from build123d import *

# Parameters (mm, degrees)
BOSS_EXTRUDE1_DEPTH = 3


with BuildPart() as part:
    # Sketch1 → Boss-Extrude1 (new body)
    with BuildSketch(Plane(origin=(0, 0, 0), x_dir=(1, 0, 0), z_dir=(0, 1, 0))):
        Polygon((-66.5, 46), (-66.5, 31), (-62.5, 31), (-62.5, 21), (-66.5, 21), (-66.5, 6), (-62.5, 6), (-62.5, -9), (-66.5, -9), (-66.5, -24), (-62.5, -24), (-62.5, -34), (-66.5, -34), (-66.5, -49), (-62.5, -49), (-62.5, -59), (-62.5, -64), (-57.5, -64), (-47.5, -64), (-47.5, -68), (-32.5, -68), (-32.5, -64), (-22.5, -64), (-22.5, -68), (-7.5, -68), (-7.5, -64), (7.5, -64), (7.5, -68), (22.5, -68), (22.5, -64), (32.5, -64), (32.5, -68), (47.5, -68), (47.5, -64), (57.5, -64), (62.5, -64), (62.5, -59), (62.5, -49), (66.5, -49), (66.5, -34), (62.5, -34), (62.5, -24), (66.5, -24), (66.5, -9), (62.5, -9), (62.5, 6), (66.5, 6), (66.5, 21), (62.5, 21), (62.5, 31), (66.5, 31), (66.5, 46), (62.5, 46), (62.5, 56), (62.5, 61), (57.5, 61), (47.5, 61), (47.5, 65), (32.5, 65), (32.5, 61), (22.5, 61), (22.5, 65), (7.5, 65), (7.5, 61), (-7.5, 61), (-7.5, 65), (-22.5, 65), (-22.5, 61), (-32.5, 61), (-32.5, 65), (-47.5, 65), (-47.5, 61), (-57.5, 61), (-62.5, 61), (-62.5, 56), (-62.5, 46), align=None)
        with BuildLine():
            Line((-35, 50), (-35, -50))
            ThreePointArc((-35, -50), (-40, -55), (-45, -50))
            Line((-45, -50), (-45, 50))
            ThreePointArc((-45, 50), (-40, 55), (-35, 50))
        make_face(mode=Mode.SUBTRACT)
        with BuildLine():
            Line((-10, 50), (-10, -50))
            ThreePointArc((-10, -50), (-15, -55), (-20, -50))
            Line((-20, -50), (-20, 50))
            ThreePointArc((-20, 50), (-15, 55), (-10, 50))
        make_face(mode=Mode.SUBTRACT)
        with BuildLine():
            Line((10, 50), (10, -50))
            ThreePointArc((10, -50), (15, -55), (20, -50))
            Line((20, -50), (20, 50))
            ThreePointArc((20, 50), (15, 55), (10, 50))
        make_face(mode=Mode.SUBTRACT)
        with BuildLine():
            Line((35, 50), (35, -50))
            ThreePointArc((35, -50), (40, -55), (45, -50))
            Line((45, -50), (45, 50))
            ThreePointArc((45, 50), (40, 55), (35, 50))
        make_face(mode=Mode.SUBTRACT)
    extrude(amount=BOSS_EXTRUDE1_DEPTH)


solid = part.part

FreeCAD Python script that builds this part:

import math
import FreeCAD as App
import Part
import Sketcher
Q = App.Units.Quantity

doc = App.newDocument("Part")
body = doc.addObject("PartDesign::Body", "Body")

# Sketch on XZ plane
sketch1 = body.newObject("Sketcher::SketchObject", "Sketch")
sketch1.AttachmentSupport = (doc.getObject("XZ_Plane"), [""])
sketch1.MapMode = "FlatFace"
sketch1.addGeometry(Part.LineSegment(App.Vector(-66.5, -46, 0), App.Vector(-66.5, -31, 0)), False)
sketch1.addGeometry(Part.LineSegment(App.Vector(-66.5, -31, 0), App.Vector(-62.5, -31, 0)), False)
sketch1.addGeometry(Part.LineSegment(App.Vector(-62.5, -31, 0), App.Vector(-62.5, -21, 0)), False)
sketch1.addGeometry(Part.LineSegment(App.Vector(-62.5, -21, 0), App.Vector(-66.5, -21, 0)), False)
sketch1.addGeometry(Part.LineSegment(App.Vector(-66.5, -21, 0), App.Vector(-66.5, -6, 0)), False)
sketch1.addGeometry(Part.LineSegment(App.Vector(-66.5, -6, 0), App.Vector(-62.5, -6, 0)), False)
sketch1.addGeometry(Part.LineSegment(App.Vector(-62.5, -6, 0), App.Vector(-62.5, 9, 0)), False)
sketch1.addGeometry(Part.LineSegment(App.Vector(-62.5, 9, 0), App.Vector(-66.5, 9, 0)), False)
sketch1.addGeometry(Part.LineSegment(App.Vector(-66.5, 9, 0), App.Vector(-66.5, 24, 0)), False)
sketch1.addGeometry(Part.LineSegment(App.Vector(-66.5, 24, 0), App.Vector(-62.5, 24, 0)), False)
sketch1.addGeometry(Part.LineSegment(App.Vector(-62.5, 24, 0), App.Vector(-62.5, 34, 0)), False)
sketch1.addGeometry(Part.LineSegment(App.Vector(-62.5, 34, 0), App.Vector(-66.5, 34, 0)), False)
sketch1.addGeometry(Part.LineSegment(App.Vector(-66.5, 34, 0), App.Vector(-66.5, 49, 0)), False)
sketch1.addGeometry(Part.LineSegment(App.Vector(-66.5, 49, 0), App.Vector(-62.5, 49, 0)), False)
sketch1.addGeometry(Part.LineSegment(App.Vector(-62.5, 49, 0), App.Vector(-62.5, 64, 0)), False)
sketch1.addGeometry(Part.LineSegment(App.Vector(-62.5, 64, 0), App.Vector(-47.5, 64, 0)), False)
sketch1.addGeometry(Part.LineSegment(App.Vector(-47.5, 64, 0), App.Vector(-47.5, 68, 0)), False)
sketch1.addGeometry(Part.LineSegment(App.Vector(-47.5, 68, 0), App.Vector(-32.5, 68, 0)), False)
sketch1.addGeometry(Part.LineSegment(App.Vector(-32.5, 68, 0), App.Vector(-32.5, 64, 0)), False)
sketch1.addGeometry(Part.LineSegment(App.Vector(-32.5, 64, 0), App.Vector(-22.5, 64, 0)), False)
sketch1.addGeometry(Part.LineSegment(App.Vector(-22.5, 64, 0), App.Vector(-22.5, 68, 0)), False)
sketch1.addGeometry(Part.LineSegment(App.Vector(-22.5, 68, 0), App.Vector(-7.5, 68, 0)), False)
sketch1.addGeometry(Part.LineSegment(App.Vector(-7.5, 68, 0), App.Vector(-7.5, 64, 0)), False)
sketch1.addGeometry(Part.LineSegment(App.Vector(-7.5, 64, 0), App.Vector(7.5, 64, 0)), False)
sketch1.addGeometry(Part.LineSegment(App.Vector(7.5, 64, 0), App.Vector(7.5, 68, 0)), False)
sketch1.addGeometry(Part.LineSegment(App.Vector(7.5, 68, 0), App.Vector(22.5, 68, 0)), False)
sketch1.addGeometry(Part.LineSegment(App.Vector(22.5, 68, 0), App.Vector(22.5, 64, 0)), False)
sketch1.addGeometry(Part.LineSegment(App.Vector(22.5, 64, 0), App.Vector(32.5, 64, 0)), False)
sketch1.addGeometry(Part.LineSegment(App.Vector(32.5, 64, 0), App.Vector(32.5, 68, 0)), False)
sketch1.addGeometry(Part.LineSegment(App.Vector(32.5, 68, 0), App.Vector(47.5, 68, 0)), False)
sketch1.addGeometry(Part.LineSegment(App.Vector(47.5, 68, 0), App.Vector(47.5, 64, 0)), False)
sketch1.addGeometry(Part.LineSegment(App.Vector(47.5, 64, 0), App.Vector(62.5, 64, 0)), False)
sketch1.addGeometry(Part.LineSegment(App.Vector(62.5, 64, 0), App.Vector(62.5, 49, 0)), False)
sketch1.addGeometry(Part.LineSegment(App.Vector(62.5, 49, 0), App.Vector(66.5, 49, 0)), False)
sketch1.addGeometry(Part.LineSegment(App.Vector(66.5, 49, 0), App.Vector(66.5, 34, 0)), False)
sketch1.addGeometry(Part.LineSegment(App.Vector(66.5, 34, 0), App.Vector(62.5, 34, 0)), False)
sketch1.addGeometry(Part.LineSegment(App.Vector(62.5, 34, 0), App.Vector(62.5, 24, 0)), False)
sketch1.addGeometry(Part.LineSegment(App.Vector(62.5, 24, 0), App.Vector(66.5, 24, 0)), False)
sketch1.addGeometry(Part.LineSegment(App.Vector(66.5, 24, 0), App.Vector(66.5, 9, 0)), False)
sketch1.addGeometry(Part.LineSegment(App.Vector(66.5, 9, 0), App.Vector(62.5, 9, 0)), False)
sketch1.addGeometry(Part.LineSegment(App.Vector(62.5, 9, 0), App.Vector(62.5, -6, 0)), False)
sketch1.addGeometry(Part.LineSegment(App.Vector(62.5, -6, 0), App.Vector(66.5, -6, 0)), False)
sketch1.addGeometry(Part.LineSegment(App.Vector(66.5, -6, 0), App.Vector(66.5, -21, 0)), False)
sketch1.addGeometry(Part.LineSegment(App.Vector(66.5, -21, 0), App.Vector(62.5, -21, 0)), False)
sketch1.addGeometry(Part.LineSegment(App.Vector(62.5, -21, 0), App.Vector(62.5, -31, 0)), False)
sketch1.addGeometry(Part.LineSegment(App.Vector(62.5, -31, 0), App.Vector(66.5, -31, 0)), False)
sketch1.addGeometry(Part.LineSegment(App.Vector(66.5, -31, 0), App.Vector(66.5, -46, 0)), False)
sketch1.addGeometry(Part.LineSegment(App.Vector(66.5, -46, 0), App.Vector(62.5, -46, 0)), False)
sketch1.addGeometry(Part.LineSegment(App.Vector(62.5, -46, 0), App.Vector(62.5, -61, 0)), False)
sketch1.addGeometry(Part.LineSegment(App.Vector(62.5, -61, 0), App.Vector(47.5, -61, 0)), False)
sketch1.addGeometry(Part.LineSegment(App.Vector(47.5, -61, 0), App.Vector(47.5, -65, 0)), False)
sketch1.addGeometry(Part.LineSegment(App.Vector(47.5, -65, 0), App.Vector(32.5, -65, 0)), False)
sketch1.addGeometry(Part.LineSegment(App.Vector(32.5, -65, 0), App.Vector(32.5, -61, 0)), False)
sketch1.addGeometry(Part.LineSegment(App.Vector(32.5, -61, 0), App.Vector(22.5, -61, 0)), False)
sketch1.addGeometry(Part.LineSegment(App.Vector(22.5, -61, 0), App.Vector(22.5, -65, 0)), False)
sketch1.addGeometry(Part.LineSegment(App.Vector(22.5, -65, 0), App.Vector(7.5, -65, 0)), False)
sketch1.addGeometry(Part.LineSegment(App.Vector(7.5, -65, 0), App.Vector(7.5, -61, 0)), False)
sketch1.addGeometry(Part.LineSegment(App.Vector(7.5, -61, 0), App.Vector(-7.5, -61, 0)), False)
sketch1.addGeometry(Part.LineSegment(App.Vector(-7.5, -61, 0), App.Vector(-7.5, -65, 0)), False)
sketch1.addGeometry(Part.LineSegment(App.Vector(-7.5, -65, 0), App.Vector(-22.5, -65, 0)), False)
sketch1.addGeometry(Part.LineSegment(App.Vector(-22.5, -65, 0), App.Vector(-22.5, -61, 0)), False)
sketch1.addGeometry(Part.LineSegment(App.Vector(-22.5, -61, 0), App.Vector(-32.5, -61, 0)), False)
sketch1.addGeometry(Part.LineSegment(App.Vector(-32.5, -61, 0), App.Vector(-32.5, -65, 0)), False)
sketch1.addGeometry(Part.LineSegment(App.Vector(-32.5, -65, 0), App.Vector(-47.5, -65, 0)), False)
sketch1.addGeometry(Part.LineSegment(App.Vector(-47.5, -65, 0), App.Vector(-47.5, -61, 0)), False)
sketch1.addGeometry(Part.LineSegment(App.Vector(-47.5, -61, 0), App.Vector(-62.5, -61, 0)), False)
sketch1.addGeometry(Part.LineSegment(App.Vector(-62.5, -61, 0), App.Vector(-62.5, -46, 0)), False)
sketch1.addGeometry(Part.LineSegment(App.Vector(-62.5, -46, 0), App.Vector(-66.5, -46, 0)), False)
sketch1.addGeometry(Part.ArcOfCircle(Part.Circle(App.Vector(-40, -50, 0), App.Vector(0, 0, 1), 5), math.radians(180), math.radians(360)), False)
sketch1.addGeometry(Part.LineSegment(App.Vector(-35, -50, 0), App.Vector(-35, 50, 0)), False)
sketch1.addGeometry(Part.ArcOfCircle(Part.Circle(App.Vector(-40, 50, 0), App.Vector(0, 0, 1), 5), math.radians(0), math.radians(180)), False)
sketch1.addGeometry(Part.LineSegment(App.Vector(-45, 50, 0), App.Vector(-45, -50, 0)), False)
sketch1.addGeometry(Part.ArcOfCircle(Part.Circle(App.Vector(-15, -50, 0), App.Vector(0, 0, 1), 5), math.radians(180), math.radians(360)), False)
sketch1.addGeometry(Part.LineSegment(App.Vector(-10, -50, 0), App.Vector(-10, 50, 0)), False)
sketch1.addGeometry(Part.ArcOfCircle(Part.Circle(App.Vector(-15, 50, 0), App.Vector(0, 0, 1), 5), math.radians(0), math.radians(180)), False)
sketch1.addGeometry(Part.LineSegment(App.Vector(-20, 50, 0), App.Vector(-20, -50, 0)), False)
sketch1.addGeometry(Part.LineSegment(App.Vector(10, 50, 0), App.Vector(10, -50, 0)), False)
sketch1.addGeometry(Part.ArcOfCircle(Part.Circle(App.Vector(15, -50, 0), App.Vector(0, 0, 1), 5), math.radians(180), math.radians(360)), False)
sketch1.addGeometry(Part.LineSegment(App.Vector(20, -50, 0), App.Vector(20, 50, 0)), False)
sketch1.addGeometry(Part.ArcOfCircle(Part.Circle(App.Vector(15, 50, 0), App.Vector(0, 0, 1), 5), math.radians(0), math.radians(180)), False)
sketch1.addGeometry(Part.LineSegment(App.Vector(35, 50, 0), App.Vector(35, -50, 0)), False)
sketch1.addGeometry(Part.ArcOfCircle(Part.Circle(App.Vector(40, -50, 0), App.Vector(0, 0, 1), 5), math.radians(180), math.radians(360)), False)
sketch1.addGeometry(Part.LineSegment(App.Vector(45, -50, 0), App.Vector(45, 50, 0)), False)
sketch1.addGeometry(Part.ArcOfCircle(Part.Circle(App.Vector(40, 50, 0), App.Vector(0, 0, 1), 5), math.radians(0), math.radians(180)), False)
sketch1.addConstraint(Sketcher.Constraint("Coincident", 0, 2, 1, 1))
sketch1.addConstraint(Sketcher.Constraint("Coincident", 1, 2, 2, 1))
sketch1.addConstraint(Sketcher.Constraint("Coincident", 2, 2, 3, 1))
sketch1.addConstraint(Sketcher.Constraint("Coincident", 3, 2, 4, 1))
sketch1.addConstraint(Sketcher.Constraint("Coincident", 4, 2, 5, 1))
sketch1.addConstraint(Sketcher.Constraint("Coincident", 5, 2, 6, 1))
sketch1.addConstraint(Sketcher.Constraint("Coincident", 6, 2, 7, 1))
sketch1.addConstraint(Sketcher.Constraint("Coincident", 7, 2, 8, 1))
sketch1.addConstraint(Sketcher.Constraint("Coincident", 8, 2, 9, 1))
sketch1.addConstraint(Sketcher.Constraint("Coincident", 9, 2, 10, 1))
sketch1.addConstraint(Sketcher.Constraint("Coincident", 10, 2, 11, 1))
sketch1.addConstraint(Sketcher.Constraint("Coincident", 11, 2, 12, 1))
sketch1.addConstraint(Sketcher.Constraint("Coincident", 12, 2, 13, 1))
sketch1.addConstraint(Sketcher.Constraint("Coincident", 13, 2, 14, 1))
sketch1.addConstraint(Sketcher.Constraint("Coincident", 14, 2, 15, 1))
sketch1.addConstraint(Sketcher.Constraint("Coincident", 15, 2, 16, 1))
sketch1.addConstraint(Sketcher.Constraint("Coincident", 16, 2, 17, 1))
sketch1.addConstraint(Sketcher.Constraint("Coincident", 17, 2, 18, 1))
sketch1.addConstraint(Sketcher.Constraint("Coincident", 18, 2, 19, 1))
sketch1.addConstraint(Sketcher.Constraint("Coincident", 19, 2, 20, 1))
sketch1.addConstraint(Sketcher.Constraint("Coincident", 20, 2, 21, 1))
sketch1.addConstraint(Sketcher.Constraint("Coincident", 21, 2, 22, 1))
sketch1.addConstraint(Sketcher.Constraint("Coincident", 22, 2, 23, 1))
sketch1.addConstraint(Sketcher.Constraint("Coincident", 23, 2, 24, 1))
sketch1.addConstraint(Sketcher.Constraint("Coincident", 24, 2, 25, 1))
sketch1.addConstraint(Sketcher.Constraint("Coincident", 25, 2, 26, 1))
sketch1.addConstraint(Sketcher.Constraint("Coincident", 26, 2, 27, 1))
sketch1.addConstraint(Sketcher.Constraint("Coincident", 27, 2, 28, 1))
sketch1.addConstraint(Sketcher.Constraint("Coincident", 28, 2, 29, 1))
sketch1.addConstraint(Sketcher.Constraint("Coincident", 29, 2, 30, 1))
sketch1.addConstraint(Sketcher.Constraint("Coincident", 30, 2, 31, 1))
sketch1.addConstraint(Sketcher.Constraint("Coincident", 31, 2, 32, 1))
sketch1.addConstraint(Sketcher.Constraint("Coincident", 32, 2, 33, 1))
sketch1.addConstraint(Sketcher.Constraint("Coincident", 33, 2, 34, 1))
sketch1.addConstraint(Sketcher.Constraint("Coincident", 34, 2, 35, 1))
sketch1.addConstraint(Sketcher.Constraint("Coincident", 35, 2, 36, 1))
sketch1.addConstraint(Sketcher.Constraint("Coincident", 36, 2, 37, 1))
sketch1.addConstraint(Sketcher.Constraint("Coincident", 37, 2, 38, 1))
sketch1.addConstraint(Sketcher.Constraint("Coincident", 38, 2, 39, 1))
sketch1.addConstraint(Sketcher.Constraint("Coincident", 39, 2, 40, 1))
sketch1.addConstraint(Sketcher.Constraint("Coincident", 40, 2, 41, 1))
sketch1.addConstraint(Sketcher.Constraint("Coincident", 41, 2, 42, 1))
sketch1.addConstraint(Sketcher.Constraint("Coincident", 42, 2, 43, 1))
sketch1.addConstraint(Sketcher.Constraint("Coincident", 43, 2, 44, 1))
sketch1.addConstraint(Sketcher.Constraint("Coincident", 44, 2, 45, 1))
sketch1.addConstraint(Sketcher.Constraint("Coincident", 45, 2, 46, 1))
sketch1.addConstraint(Sketcher.Constraint("Coincident", 46, 2, 47, 1))
sketch1.addConstraint(Sketcher.Constraint("Coincident", 47, 2, 48, 1))
sketch1.addConstraint(Sketcher.Constraint("Coincident", 48, 2, 49, 1))
sketch1.addConstraint(Sketcher.Constraint("Coincident", 49, 2, 50, 1))
sketch1.addConstraint(Sketcher.Constraint("Coincident", 50, 2, 51, 1))
sketch1.addConstraint(Sketcher.Constraint("Coincident", 51, 2, 52, 1))
sketch1.addConstraint(Sketcher.Constraint("Coincident", 52, 2, 53, 1))
sketch1.addConstraint(Sketcher.Constraint("Coincident", 53, 2, 54, 1))
sketch1.addConstraint(Sketcher.Constraint("Coincident", 54, 2, 55, 1))
sketch1.addConstraint(Sketcher.Constraint("Coincident", 55, 2, 56, 1))
sketch1.addConstraint(Sketcher.Constraint("Coincident", 56, 2, 57, 1))
sketch1.addConstraint(Sketcher.Constraint("Coincident", 57, 2, 58, 1))
sketch1.addConstraint(Sketcher.Constraint("Coincident", 58, 2, 59, 1))
sketch1.addConstraint(Sketcher.Constraint("Coincident", 59, 2, 60, 1))
sketch1.addConstraint(Sketcher.Constraint("Coincident", 60, 2, 61, 1))
sketch1.addConstraint(Sketcher.Constraint("Coincident", 61, 2, 62, 1))
sketch1.addConstraint(Sketcher.Constraint("Coincident", 62, 2, 63, 1))
sketch1.addConstraint(Sketcher.Constraint("Coincident", 63, 2, 64, 1))
sketch1.addConstraint(Sketcher.Constraint("Coincident", 64, 2, 65, 1))
sketch1.addConstraint(Sketcher.Constraint("Coincident", 65, 2, 66, 1))
sketch1.addConstraint(Sketcher.Constraint("Coincident", 66, 2, 67, 1))
sketch1.addConstraint(Sketcher.Constraint("Coincident", 67, 2, 0, 1))
sketch1.addConstraint(Sketcher.Constraint("Tangent", 68, 2, 69, 1))
sketch1.addConstraint(Sketcher.Constraint("Tangent", 69, 2, 70, 1))
sketch1.addConstraint(Sketcher.Constraint("Tangent", 70, 2, 71, 1))
sketch1.addConstraint(Sketcher.Constraint("Tangent", 71, 2, 68, 1))
sketch1.addConstraint(Sketcher.Constraint("Tangent", 72, 2, 73, 1))
sketch1.addConstraint(Sketcher.Constraint("Tangent", 73, 2, 74, 1))
sketch1.addConstraint(Sketcher.Constraint("Tangent", 74, 2, 75, 1))
sketch1.addConstraint(Sketcher.Constraint("Tangent", 75, 2, 72, 1))
sketch1.addConstraint(Sketcher.Constraint("Tangent", 76, 2, 77, 1))
sketch1.addConstraint(Sketcher.Constraint("Tangent", 77, 2, 78, 1))
sketch1.addConstraint(Sketcher.Constraint("Tangent", 78, 2, 79, 1))
sketch1.addConstraint(Sketcher.Constraint("Tangent", 79, 2, 76, 1))
sketch1.addConstraint(Sketcher.Constraint("Tangent", 80, 2, 81, 1))
sketch1.addConstraint(Sketcher.Constraint("Tangent", 81, 2, 82, 1))
sketch1.addConstraint(Sketcher.Constraint("Tangent", 82, 2, 83, 1))
sketch1.addConstraint(Sketcher.Constraint("Tangent", 83, 2, 80, 1))
sketch1.addConstraint(Sketcher.Constraint("Vertical", 0))
sketch1.addConstraint(Sketcher.Constraint("Horizontal", 1))
sketch1.addConstraint(Sketcher.Constraint("Vertical", 2))
sketch1.addConstraint(Sketcher.Constraint("Horizontal", 3))
sketch1.addConstraint(Sketcher.Constraint("Vertical", 4))
sketch1.addConstraint(Sketcher.Constraint("Horizontal", 5))
sketch1.addConstraint(Sketcher.Constraint("Vertical", 6))
sketch1.addConstraint(Sketcher.Constraint("Horizontal", 7))
sketch1.addConstraint(Sketcher.Constraint("Vertical", 8))
sketch1.addConstraint(Sketcher.Constraint("Horizontal", 9))
sketch1.addConstraint(Sketcher.Constraint("Vertical", 10))
sketch1.addConstraint(Sketcher.Constraint("Horizontal", 11))
sketch1.addConstraint(Sketcher.Constraint("Vertical", 12))
sketch1.addConstraint(Sketcher.Constraint("Horizontal", 13))
sketch1.addConstraint(Sketcher.Constraint("Vertical", 14))
sketch1.addConstraint(Sketcher.Constraint("Horizontal", 15))
sketch1.addConstraint(Sketcher.Constraint("Vertical", 16))
sketch1.addConstraint(Sketcher.Constraint("Horizontal", 17))
sketch1.addConstraint(Sketcher.Constraint("Vertical", 18))
sketch1.addConstraint(Sketcher.Constraint("Horizontal", 19))
sketch1.addConstraint(Sketcher.Constraint("Vertical", 20))
sketch1.addConstraint(Sketcher.Constraint("Horizontal", 21))
sketch1.addConstraint(Sketcher.Constraint("Vertical", 22))
sketch1.addConstraint(Sketcher.Constraint("Horizontal", 23))
sketch1.addConstraint(Sketcher.Constraint("Vertical", 24))
sketch1.addConstraint(Sketcher.Constraint("Horizontal", 25))
sketch1.addConstraint(Sketcher.Constraint("Vertical", 26))
sketch1.addConstraint(Sketcher.Constraint("Horizontal", 27))
sketch1.addConstraint(Sketcher.Constraint("Vertical", 28))
sketch1.addConstraint(Sketcher.Constraint("Horizontal", 29))
sketch1.addConstraint(Sketcher.Constraint("Vertical", 30))
sketch1.addConstraint(Sketcher.Constraint("Horizontal", 31))
sketch1.addConstraint(Sketcher.Constraint("Vertical", 32))
sketch1.addConstraint(Sketcher.Constraint("Horizontal", 33))
sketch1.addConstraint(Sketcher.Constraint("Vertical", 34))
sketch1.addConstraint(Sketcher.Constraint("Horizontal", 35))
sketch1.addConstraint(Sketcher.Constraint("Vertical", 36))
sketch1.addConstraint(Sketcher.Constraint("Horizontal", 37))
sketch1.addConstraint(Sketcher.Constraint("Vertical", 38))
sketch1.addConstraint(Sketcher.Constraint("Horizontal", 39))
sketch1.addConstraint(Sketcher.Constraint("Vertical", 40))
sketch1.addConstraint(Sketcher.Constraint("Horizontal", 41))
sketch1.addConstraint(Sketcher.Constraint("Vertical", 42))
sketch1.addConstraint(Sketcher.Constraint("Horizontal", 43))
sketch1.addConstraint(Sketcher.Constraint("Vertical", 44))
sketch1.addConstraint(Sketcher.Constraint("Horizontal", 45))
sketch1.addConstraint(Sketcher.Constraint("Vertical", 46))
sketch1.addConstraint(Sketcher.Constraint("Horizontal", 47))
sketch1.addConstraint(Sketcher.Constraint("Vertical", 48))
sketch1.addConstraint(Sketcher.Constraint("Horizontal", 49))
sketch1.addConstraint(Sketcher.Constraint("Vertical", 50))
sketch1.addConstraint(Sketcher.Constraint("Horizontal", 51))
sketch1.addConstraint(Sketcher.Constraint("Vertical", 52))
sketch1.addConstraint(Sketcher.Constraint("Horizontal", 53))
sketch1.addConstraint(Sketcher.Constraint("Vertical", 54))
sketch1.addConstraint(Sketcher.Constraint("Horizontal", 55))
sketch1.addConstraint(Sketcher.Constraint("Vertical", 56))
sketch1.addConstraint(Sketcher.Constraint("Horizontal", 57))
sketch1.addConstraint(Sketcher.Constraint("Vertical", 58))
sketch1.addConstraint(Sketcher.Constraint("Horizontal", 59))
sketch1.addConstraint(Sketcher.Constraint("Vertical", 60))
sketch1.addConstraint(Sketcher.Constraint("Horizontal", 61))
sketch1.addConstraint(Sketcher.Constraint("Vertical", 62))
sketch1.addConstraint(Sketcher.Constraint("Horizontal", 63))
sketch1.addConstraint(Sketcher.Constraint("Vertical", 64))
sketch1.addConstraint(Sketcher.Constraint("Horizontal", 65))
sketch1.addConstraint(Sketcher.Constraint("Vertical", 66))
sketch1.addConstraint(Sketcher.Constraint("Horizontal", 67))
sketch1.addConstraint(Sketcher.Constraint("Vertical", 69))
sketch1.addConstraint(Sketcher.Constraint("Vertical", 71))
sketch1.addConstraint(Sketcher.Constraint("Vertical", 73))
sketch1.addConstraint(Sketcher.Constraint("Vertical", 75))
sketch1.addConstraint(Sketcher.Constraint("Vertical", 76))
sketch1.addConstraint(Sketcher.Constraint("Vertical", 78))
sketch1.addConstraint(Sketcher.Constraint("Vertical", 80))
sketch1.addConstraint(Sketcher.Constraint("Vertical", 82))
sketch1.addConstraint(Sketcher.Constraint("Equal", 70, 72))
sketch1.addConstraint(Sketcher.Constraint("Equal", 74, 77))
sketch1.addConstraint(Sketcher.Constraint("Equal", 79, 81))
sketch1.addConstraint(Sketcher.Constraint("Symmetric", 74, 3, 77, 3, -1, 1))
sketch1.addConstraint(Sketcher.Constraint("Symmetric", 70, 3, 81, 3, -1, 1))
sketch1.addConstraint(Sketcher.Constraint("Symmetric", 21, 2, 24, 2, -2))
sketch1.addConstraint(Sketcher.Constraint("Symmetric", 19, 2, 26, 2, -2))
sketch1.addConstraint(Sketcher.Constraint("Symmetric", 17, 2, 28, 2, -2))
sketch1.addConstraint(Sketcher.Constraint("Symmetric", 15, 2, 30, 2, -2))
sketch1.addConstraint(Sketcher.Constraint("Symmetric", 13, 2, 32, 2, -2))
sketch1.addConstraint(Sketcher.Constraint("Symmetric", 11, 2, 34, 2, -2))
sketch1.addConstraint(Sketcher.Constraint("Symmetric", 9, 2, 36, 2, -2))
sketch1.addConstraint(Sketcher.Constraint("Symmetric", 7, 2, 38, 2, -2))
sketch1.addConstraint(Sketcher.Constraint("Symmetric", 5, 2, 40, 2, -2))
sketch1.addConstraint(Sketcher.Constraint("Symmetric", 3, 2, 42, 2, -2))
sketch1.addConstraint(Sketcher.Constraint("Symmetric", 1, 2, 44, 2, -2))
sketch1.addConstraint(Sketcher.Constraint("Symmetric", 55, 2, 58, 2, -2))
sketch1.addConstraint(Sketcher.Constraint("Symmetric", 53, 2, 60, 2, -2))
sketch1.addConstraint(Sketcher.Constraint("Symmetric", 51, 2, 62, 2, -2))
sketch1.addConstraint(Sketcher.Constraint("Symmetric", 49, 2, 64, 2, -2))
sketch1.addConstraint(Sketcher.Constraint("Symmetric", 47, 2, 66, 2, -2))
sketch1.addConstraint(Sketcher.Constraint("Horizontal", 68, 3, 72, 3))
sketch1.addConstraint(Sketcher.Constraint("Horizontal", 70, 3, 74, 3))
sketch1.addConstraint(Sketcher.Constraint("Horizontal", 72, 3, 77, 3))
sketch1.addConstraint(Sketcher.Constraint("Horizontal", 74, 3, 79, 3))
sketch1.addConstraint(Sketcher.Constraint("Horizontal", 79, 3, 83, 3))
sketch1.addConstraint(Sketcher.Constraint("Horizontal", 15, 2, 18, 2))
sketch1.addConstraint(Sketcher.Constraint("Horizontal", 17, 2, 20, 2))
sketch1.addConstraint(Sketcher.Constraint("Horizontal", 19, 2, 22, 2))
sketch1.addConstraint(Sketcher.Constraint("Horizontal", 49, 2, 52, 2))
sketch1.addConstraint(Sketcher.Constraint("Horizontal", 51, 2, 54, 2))
sketch1.addConstraint(Sketcher.Constraint("Horizontal", 53, 2, 56, 2))
sketch1.addConstraint(Sketcher.Constraint("Vertical", 0, 2, 3, 2))
sketch1.addConstraint(Sketcher.Constraint("Vertical", 2, 2, 5, 2))
sketch1.addConstraint(Sketcher.Constraint("Vertical", 4, 2, 7, 2))
sketch1.addConstraint(Sketcher.Constraint("Vertical", 6, 2, 9, 2))
sketch1.addConstraint(Sketcher.Constraint("Vertical", 8, 2, 11, 2))
sketch1.addConstraint(Sketcher.Constraint("Vertical", 10, 2, 13, 2))
sketch1.addConstraint(Sketcher.Constraint("Vertical", 42, 2, 45, 2))
sketch1.addConstraint(Sketcher.Constraint("Vertical", 44, 2, 47, 2))
sketch1.addConstraint(Sketcher.Constraint("Vertical", 30, 2, 49, 2))
sketch1.addConstraint(Sketcher.Constraint("Vertical", 28, 2, 51, 2))
sketch1.addConstraint(Sketcher.Constraint("Vertical", 26, 2, 53, 2))
sketch1.addConstraint(Sketcher.Constraint("Vertical", 24, 2, 55, 2))
sketch1.addConstraint(Sketcher.Constraint("Equal", 15, 17))
sketch1.addConstraint(Sketcher.Constraint("Equal", 17, 21))
sketch1.addConstraint(Sketcher.Constraint("Equal", 21, 23))
sketch1.addConstraint(Sketcher.Constraint("Equal", 65, 0))
sketch1.addConstraint(Sketcher.Constraint("Equal", 61, 2))
sketch1.addConstraint(Sketcher.Constraint("Equal", 0, 4))
sketch1.addConstraint(Sketcher.Constraint("Equal", 4, 6))
sketch1.addConstraint(Sketcher.Constraint("Equal", 6, 8))
sketch1.addConstraint(Sketcher.Constraint("Equal", 2, 10))
sketch1.addConstraint(Sketcher.Constraint("Equal", 8, 12))
sketch1.addConstraint(Sketcher.Constraint("Equal", 12, 14))
sketch1.addConstraint(Sketcher.Constraint("Equal", 67, 16))
sketch1.addConstraint(Sketcher.Constraint("Equal", 46, 48))
sketch1.addConstraint(Sketcher.Constraint("Equal", 30, 50))
sketch1.addConstraint(Sketcher.Constraint("Radius", 68, Q("5 mm")))
sketch1.addConstraint(Sketcher.Constraint("DistanceX", 1, 1, 1, 2, Q("4 mm")))
sketch1.addConstraint(Sketcher.Constraint("DistanceX", 15, 1, 15, 2, Q("15 mm")))
sketch1.addConstraint(Sketcher.Constraint("DistanceX", 19, 1, 19, 2, Q("10 mm")))
sketch1.addConstraint(Sketcher.Constraint("DistanceY", 69, 1, 69, 2, Q("100 mm")))
sketch1.addConstraint(Sketcher.Constraint("DistanceX", 68, 3, -1, 1, Q("40 mm")))
sketch1.addConstraint(Sketcher.Constraint("DistanceX", 72, 3, -1, 1, Q("15 mm")))
sketch1.addConstraint(Sketcher.Constraint("DistanceY", 0, 2, -1, 1, Q("31 mm")))
pad1 = body.newObject("PartDesign::Pad", "Pad")
pad1.Profile = sketch1
pad1.Length = 3
pad1.Reversed = True

doc.recompute()
